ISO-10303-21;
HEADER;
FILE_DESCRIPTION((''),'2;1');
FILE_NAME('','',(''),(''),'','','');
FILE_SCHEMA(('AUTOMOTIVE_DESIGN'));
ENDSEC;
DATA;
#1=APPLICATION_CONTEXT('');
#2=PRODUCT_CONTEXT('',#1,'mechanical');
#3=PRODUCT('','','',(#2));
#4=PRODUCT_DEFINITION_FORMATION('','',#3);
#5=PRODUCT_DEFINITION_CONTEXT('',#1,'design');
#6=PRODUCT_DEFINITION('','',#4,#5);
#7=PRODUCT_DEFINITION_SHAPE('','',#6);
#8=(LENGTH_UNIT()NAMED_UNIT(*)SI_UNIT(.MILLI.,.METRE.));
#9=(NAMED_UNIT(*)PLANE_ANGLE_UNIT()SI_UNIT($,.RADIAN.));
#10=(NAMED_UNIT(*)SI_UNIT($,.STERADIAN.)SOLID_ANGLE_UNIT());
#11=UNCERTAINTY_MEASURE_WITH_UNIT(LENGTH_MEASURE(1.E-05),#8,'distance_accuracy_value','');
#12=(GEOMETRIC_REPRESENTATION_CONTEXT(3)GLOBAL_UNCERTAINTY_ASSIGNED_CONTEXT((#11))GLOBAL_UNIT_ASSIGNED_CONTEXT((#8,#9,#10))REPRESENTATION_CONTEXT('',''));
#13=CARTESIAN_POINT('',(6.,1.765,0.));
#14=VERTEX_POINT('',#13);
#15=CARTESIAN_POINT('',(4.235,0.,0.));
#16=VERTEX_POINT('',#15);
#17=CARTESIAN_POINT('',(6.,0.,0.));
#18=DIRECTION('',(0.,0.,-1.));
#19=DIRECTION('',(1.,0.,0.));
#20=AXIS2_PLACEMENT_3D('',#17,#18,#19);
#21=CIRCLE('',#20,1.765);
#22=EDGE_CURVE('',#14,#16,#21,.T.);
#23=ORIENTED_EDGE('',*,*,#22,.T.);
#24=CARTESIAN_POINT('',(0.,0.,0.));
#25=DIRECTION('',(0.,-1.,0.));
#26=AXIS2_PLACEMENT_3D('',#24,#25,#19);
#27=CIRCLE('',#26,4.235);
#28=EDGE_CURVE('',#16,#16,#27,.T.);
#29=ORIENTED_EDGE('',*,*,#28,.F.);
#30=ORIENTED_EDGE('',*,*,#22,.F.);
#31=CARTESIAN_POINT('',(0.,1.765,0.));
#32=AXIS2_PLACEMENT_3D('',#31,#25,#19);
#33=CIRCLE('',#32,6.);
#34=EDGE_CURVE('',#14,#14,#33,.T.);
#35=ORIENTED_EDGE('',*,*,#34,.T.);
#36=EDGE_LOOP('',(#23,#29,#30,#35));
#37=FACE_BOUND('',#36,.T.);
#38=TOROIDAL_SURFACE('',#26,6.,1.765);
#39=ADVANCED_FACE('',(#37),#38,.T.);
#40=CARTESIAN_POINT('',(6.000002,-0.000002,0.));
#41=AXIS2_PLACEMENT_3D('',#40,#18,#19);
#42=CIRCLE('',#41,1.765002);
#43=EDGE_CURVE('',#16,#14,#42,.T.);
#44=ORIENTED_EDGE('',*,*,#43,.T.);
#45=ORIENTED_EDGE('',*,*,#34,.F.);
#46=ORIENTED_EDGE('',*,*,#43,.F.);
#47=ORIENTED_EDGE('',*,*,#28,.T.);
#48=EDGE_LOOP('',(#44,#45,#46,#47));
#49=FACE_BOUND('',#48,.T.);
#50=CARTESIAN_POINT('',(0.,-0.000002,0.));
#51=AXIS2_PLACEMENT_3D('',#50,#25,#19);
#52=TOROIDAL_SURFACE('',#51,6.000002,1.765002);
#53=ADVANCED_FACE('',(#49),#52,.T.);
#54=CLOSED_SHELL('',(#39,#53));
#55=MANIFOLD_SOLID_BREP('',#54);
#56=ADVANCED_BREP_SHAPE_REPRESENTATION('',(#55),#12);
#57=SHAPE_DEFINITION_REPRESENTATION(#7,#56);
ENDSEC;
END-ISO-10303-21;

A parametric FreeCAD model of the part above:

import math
import FreeCAD as App
import Part
import Sketcher

V = App.Vector

doc = App.newDocument("Part")
params = doc.addObject("Spreadsheet::Sheet", "Params")
for row, (alias, value) in enumerate([
    ("sketch2_diameter", "12 mm"),
], start=1):
    params.set(f"A{row}", alias)
    params.set(f"B{row}", "=" + value)
    params.setAlias(f"B{row}", alias)

body = doc.addObject("PartDesign::Body", "Body")

sketch1 = body.newObject("Sketcher::SketchObject", "Sketch")
sketch1.AttachmentSupport = (doc.getObject("YZ_Plane"), [""])
sketch1.MapMode = "FlatFace"
sketch1.addGeometry([
    Part.ArcOfCircle(Part.Circle(V(0, 6, 0), V(0, 0, 1), 1.8), math.radians(-90), math.radians(0)),
    Part.ArcOfCircle(Part.Circle(V(0, 6, 0), V(0, 0, 1), 1.8), math.radians(0), math.radians(270)),
], False)
sketch1.addConstraint([
    Sketcher.Constraint("Tangent", 0, 1, 1, 2),
    Sketcher.Constraint("Coincident", 1, 1, 0, 2),
    Sketcher.Constraint("PointOnObject", 0, 3, -2),
    Sketcher.Constraint("PointOnObject", 0, 1, -2),
    Sketcher.Constraint("Horizontal", 0, 3, 1, 1),
    Sketcher.Constraint("DistanceY", -1, 1, 0, 3, 6.000002),
    Sketcher.Constraint("Radius", 0, 1.765002),
])

sketch2 = body.newObject("Sketcher::SketchObject", "Sketch001")
sketch2.AttachmentSupport = (doc.getObject("XZ_Plane"), [""])
sketch2.MapMode = "FlatFace"
sketch2.addGeometry(Part.Circle(V(0, 0, 0), V(0, 0, 1), 6), False)
sketch2.addConstraint([
    Sketcher.Constraint("Coincident", 0, 3, -1, 1),
    Sketcher.Constraint("Diameter", 0, 12.0),
])
sketch2.setExpression("Constraints[1]", "Params.sketch2_diameter")
doc.recompute()

additivepipe = body.newObject("PartDesign::AdditivePipe", "AdditivePipe")
additivepipe.Profile = sketch1
additivepipe.Spine = (sketch2, ["Edge1"])

doc.recompute()
